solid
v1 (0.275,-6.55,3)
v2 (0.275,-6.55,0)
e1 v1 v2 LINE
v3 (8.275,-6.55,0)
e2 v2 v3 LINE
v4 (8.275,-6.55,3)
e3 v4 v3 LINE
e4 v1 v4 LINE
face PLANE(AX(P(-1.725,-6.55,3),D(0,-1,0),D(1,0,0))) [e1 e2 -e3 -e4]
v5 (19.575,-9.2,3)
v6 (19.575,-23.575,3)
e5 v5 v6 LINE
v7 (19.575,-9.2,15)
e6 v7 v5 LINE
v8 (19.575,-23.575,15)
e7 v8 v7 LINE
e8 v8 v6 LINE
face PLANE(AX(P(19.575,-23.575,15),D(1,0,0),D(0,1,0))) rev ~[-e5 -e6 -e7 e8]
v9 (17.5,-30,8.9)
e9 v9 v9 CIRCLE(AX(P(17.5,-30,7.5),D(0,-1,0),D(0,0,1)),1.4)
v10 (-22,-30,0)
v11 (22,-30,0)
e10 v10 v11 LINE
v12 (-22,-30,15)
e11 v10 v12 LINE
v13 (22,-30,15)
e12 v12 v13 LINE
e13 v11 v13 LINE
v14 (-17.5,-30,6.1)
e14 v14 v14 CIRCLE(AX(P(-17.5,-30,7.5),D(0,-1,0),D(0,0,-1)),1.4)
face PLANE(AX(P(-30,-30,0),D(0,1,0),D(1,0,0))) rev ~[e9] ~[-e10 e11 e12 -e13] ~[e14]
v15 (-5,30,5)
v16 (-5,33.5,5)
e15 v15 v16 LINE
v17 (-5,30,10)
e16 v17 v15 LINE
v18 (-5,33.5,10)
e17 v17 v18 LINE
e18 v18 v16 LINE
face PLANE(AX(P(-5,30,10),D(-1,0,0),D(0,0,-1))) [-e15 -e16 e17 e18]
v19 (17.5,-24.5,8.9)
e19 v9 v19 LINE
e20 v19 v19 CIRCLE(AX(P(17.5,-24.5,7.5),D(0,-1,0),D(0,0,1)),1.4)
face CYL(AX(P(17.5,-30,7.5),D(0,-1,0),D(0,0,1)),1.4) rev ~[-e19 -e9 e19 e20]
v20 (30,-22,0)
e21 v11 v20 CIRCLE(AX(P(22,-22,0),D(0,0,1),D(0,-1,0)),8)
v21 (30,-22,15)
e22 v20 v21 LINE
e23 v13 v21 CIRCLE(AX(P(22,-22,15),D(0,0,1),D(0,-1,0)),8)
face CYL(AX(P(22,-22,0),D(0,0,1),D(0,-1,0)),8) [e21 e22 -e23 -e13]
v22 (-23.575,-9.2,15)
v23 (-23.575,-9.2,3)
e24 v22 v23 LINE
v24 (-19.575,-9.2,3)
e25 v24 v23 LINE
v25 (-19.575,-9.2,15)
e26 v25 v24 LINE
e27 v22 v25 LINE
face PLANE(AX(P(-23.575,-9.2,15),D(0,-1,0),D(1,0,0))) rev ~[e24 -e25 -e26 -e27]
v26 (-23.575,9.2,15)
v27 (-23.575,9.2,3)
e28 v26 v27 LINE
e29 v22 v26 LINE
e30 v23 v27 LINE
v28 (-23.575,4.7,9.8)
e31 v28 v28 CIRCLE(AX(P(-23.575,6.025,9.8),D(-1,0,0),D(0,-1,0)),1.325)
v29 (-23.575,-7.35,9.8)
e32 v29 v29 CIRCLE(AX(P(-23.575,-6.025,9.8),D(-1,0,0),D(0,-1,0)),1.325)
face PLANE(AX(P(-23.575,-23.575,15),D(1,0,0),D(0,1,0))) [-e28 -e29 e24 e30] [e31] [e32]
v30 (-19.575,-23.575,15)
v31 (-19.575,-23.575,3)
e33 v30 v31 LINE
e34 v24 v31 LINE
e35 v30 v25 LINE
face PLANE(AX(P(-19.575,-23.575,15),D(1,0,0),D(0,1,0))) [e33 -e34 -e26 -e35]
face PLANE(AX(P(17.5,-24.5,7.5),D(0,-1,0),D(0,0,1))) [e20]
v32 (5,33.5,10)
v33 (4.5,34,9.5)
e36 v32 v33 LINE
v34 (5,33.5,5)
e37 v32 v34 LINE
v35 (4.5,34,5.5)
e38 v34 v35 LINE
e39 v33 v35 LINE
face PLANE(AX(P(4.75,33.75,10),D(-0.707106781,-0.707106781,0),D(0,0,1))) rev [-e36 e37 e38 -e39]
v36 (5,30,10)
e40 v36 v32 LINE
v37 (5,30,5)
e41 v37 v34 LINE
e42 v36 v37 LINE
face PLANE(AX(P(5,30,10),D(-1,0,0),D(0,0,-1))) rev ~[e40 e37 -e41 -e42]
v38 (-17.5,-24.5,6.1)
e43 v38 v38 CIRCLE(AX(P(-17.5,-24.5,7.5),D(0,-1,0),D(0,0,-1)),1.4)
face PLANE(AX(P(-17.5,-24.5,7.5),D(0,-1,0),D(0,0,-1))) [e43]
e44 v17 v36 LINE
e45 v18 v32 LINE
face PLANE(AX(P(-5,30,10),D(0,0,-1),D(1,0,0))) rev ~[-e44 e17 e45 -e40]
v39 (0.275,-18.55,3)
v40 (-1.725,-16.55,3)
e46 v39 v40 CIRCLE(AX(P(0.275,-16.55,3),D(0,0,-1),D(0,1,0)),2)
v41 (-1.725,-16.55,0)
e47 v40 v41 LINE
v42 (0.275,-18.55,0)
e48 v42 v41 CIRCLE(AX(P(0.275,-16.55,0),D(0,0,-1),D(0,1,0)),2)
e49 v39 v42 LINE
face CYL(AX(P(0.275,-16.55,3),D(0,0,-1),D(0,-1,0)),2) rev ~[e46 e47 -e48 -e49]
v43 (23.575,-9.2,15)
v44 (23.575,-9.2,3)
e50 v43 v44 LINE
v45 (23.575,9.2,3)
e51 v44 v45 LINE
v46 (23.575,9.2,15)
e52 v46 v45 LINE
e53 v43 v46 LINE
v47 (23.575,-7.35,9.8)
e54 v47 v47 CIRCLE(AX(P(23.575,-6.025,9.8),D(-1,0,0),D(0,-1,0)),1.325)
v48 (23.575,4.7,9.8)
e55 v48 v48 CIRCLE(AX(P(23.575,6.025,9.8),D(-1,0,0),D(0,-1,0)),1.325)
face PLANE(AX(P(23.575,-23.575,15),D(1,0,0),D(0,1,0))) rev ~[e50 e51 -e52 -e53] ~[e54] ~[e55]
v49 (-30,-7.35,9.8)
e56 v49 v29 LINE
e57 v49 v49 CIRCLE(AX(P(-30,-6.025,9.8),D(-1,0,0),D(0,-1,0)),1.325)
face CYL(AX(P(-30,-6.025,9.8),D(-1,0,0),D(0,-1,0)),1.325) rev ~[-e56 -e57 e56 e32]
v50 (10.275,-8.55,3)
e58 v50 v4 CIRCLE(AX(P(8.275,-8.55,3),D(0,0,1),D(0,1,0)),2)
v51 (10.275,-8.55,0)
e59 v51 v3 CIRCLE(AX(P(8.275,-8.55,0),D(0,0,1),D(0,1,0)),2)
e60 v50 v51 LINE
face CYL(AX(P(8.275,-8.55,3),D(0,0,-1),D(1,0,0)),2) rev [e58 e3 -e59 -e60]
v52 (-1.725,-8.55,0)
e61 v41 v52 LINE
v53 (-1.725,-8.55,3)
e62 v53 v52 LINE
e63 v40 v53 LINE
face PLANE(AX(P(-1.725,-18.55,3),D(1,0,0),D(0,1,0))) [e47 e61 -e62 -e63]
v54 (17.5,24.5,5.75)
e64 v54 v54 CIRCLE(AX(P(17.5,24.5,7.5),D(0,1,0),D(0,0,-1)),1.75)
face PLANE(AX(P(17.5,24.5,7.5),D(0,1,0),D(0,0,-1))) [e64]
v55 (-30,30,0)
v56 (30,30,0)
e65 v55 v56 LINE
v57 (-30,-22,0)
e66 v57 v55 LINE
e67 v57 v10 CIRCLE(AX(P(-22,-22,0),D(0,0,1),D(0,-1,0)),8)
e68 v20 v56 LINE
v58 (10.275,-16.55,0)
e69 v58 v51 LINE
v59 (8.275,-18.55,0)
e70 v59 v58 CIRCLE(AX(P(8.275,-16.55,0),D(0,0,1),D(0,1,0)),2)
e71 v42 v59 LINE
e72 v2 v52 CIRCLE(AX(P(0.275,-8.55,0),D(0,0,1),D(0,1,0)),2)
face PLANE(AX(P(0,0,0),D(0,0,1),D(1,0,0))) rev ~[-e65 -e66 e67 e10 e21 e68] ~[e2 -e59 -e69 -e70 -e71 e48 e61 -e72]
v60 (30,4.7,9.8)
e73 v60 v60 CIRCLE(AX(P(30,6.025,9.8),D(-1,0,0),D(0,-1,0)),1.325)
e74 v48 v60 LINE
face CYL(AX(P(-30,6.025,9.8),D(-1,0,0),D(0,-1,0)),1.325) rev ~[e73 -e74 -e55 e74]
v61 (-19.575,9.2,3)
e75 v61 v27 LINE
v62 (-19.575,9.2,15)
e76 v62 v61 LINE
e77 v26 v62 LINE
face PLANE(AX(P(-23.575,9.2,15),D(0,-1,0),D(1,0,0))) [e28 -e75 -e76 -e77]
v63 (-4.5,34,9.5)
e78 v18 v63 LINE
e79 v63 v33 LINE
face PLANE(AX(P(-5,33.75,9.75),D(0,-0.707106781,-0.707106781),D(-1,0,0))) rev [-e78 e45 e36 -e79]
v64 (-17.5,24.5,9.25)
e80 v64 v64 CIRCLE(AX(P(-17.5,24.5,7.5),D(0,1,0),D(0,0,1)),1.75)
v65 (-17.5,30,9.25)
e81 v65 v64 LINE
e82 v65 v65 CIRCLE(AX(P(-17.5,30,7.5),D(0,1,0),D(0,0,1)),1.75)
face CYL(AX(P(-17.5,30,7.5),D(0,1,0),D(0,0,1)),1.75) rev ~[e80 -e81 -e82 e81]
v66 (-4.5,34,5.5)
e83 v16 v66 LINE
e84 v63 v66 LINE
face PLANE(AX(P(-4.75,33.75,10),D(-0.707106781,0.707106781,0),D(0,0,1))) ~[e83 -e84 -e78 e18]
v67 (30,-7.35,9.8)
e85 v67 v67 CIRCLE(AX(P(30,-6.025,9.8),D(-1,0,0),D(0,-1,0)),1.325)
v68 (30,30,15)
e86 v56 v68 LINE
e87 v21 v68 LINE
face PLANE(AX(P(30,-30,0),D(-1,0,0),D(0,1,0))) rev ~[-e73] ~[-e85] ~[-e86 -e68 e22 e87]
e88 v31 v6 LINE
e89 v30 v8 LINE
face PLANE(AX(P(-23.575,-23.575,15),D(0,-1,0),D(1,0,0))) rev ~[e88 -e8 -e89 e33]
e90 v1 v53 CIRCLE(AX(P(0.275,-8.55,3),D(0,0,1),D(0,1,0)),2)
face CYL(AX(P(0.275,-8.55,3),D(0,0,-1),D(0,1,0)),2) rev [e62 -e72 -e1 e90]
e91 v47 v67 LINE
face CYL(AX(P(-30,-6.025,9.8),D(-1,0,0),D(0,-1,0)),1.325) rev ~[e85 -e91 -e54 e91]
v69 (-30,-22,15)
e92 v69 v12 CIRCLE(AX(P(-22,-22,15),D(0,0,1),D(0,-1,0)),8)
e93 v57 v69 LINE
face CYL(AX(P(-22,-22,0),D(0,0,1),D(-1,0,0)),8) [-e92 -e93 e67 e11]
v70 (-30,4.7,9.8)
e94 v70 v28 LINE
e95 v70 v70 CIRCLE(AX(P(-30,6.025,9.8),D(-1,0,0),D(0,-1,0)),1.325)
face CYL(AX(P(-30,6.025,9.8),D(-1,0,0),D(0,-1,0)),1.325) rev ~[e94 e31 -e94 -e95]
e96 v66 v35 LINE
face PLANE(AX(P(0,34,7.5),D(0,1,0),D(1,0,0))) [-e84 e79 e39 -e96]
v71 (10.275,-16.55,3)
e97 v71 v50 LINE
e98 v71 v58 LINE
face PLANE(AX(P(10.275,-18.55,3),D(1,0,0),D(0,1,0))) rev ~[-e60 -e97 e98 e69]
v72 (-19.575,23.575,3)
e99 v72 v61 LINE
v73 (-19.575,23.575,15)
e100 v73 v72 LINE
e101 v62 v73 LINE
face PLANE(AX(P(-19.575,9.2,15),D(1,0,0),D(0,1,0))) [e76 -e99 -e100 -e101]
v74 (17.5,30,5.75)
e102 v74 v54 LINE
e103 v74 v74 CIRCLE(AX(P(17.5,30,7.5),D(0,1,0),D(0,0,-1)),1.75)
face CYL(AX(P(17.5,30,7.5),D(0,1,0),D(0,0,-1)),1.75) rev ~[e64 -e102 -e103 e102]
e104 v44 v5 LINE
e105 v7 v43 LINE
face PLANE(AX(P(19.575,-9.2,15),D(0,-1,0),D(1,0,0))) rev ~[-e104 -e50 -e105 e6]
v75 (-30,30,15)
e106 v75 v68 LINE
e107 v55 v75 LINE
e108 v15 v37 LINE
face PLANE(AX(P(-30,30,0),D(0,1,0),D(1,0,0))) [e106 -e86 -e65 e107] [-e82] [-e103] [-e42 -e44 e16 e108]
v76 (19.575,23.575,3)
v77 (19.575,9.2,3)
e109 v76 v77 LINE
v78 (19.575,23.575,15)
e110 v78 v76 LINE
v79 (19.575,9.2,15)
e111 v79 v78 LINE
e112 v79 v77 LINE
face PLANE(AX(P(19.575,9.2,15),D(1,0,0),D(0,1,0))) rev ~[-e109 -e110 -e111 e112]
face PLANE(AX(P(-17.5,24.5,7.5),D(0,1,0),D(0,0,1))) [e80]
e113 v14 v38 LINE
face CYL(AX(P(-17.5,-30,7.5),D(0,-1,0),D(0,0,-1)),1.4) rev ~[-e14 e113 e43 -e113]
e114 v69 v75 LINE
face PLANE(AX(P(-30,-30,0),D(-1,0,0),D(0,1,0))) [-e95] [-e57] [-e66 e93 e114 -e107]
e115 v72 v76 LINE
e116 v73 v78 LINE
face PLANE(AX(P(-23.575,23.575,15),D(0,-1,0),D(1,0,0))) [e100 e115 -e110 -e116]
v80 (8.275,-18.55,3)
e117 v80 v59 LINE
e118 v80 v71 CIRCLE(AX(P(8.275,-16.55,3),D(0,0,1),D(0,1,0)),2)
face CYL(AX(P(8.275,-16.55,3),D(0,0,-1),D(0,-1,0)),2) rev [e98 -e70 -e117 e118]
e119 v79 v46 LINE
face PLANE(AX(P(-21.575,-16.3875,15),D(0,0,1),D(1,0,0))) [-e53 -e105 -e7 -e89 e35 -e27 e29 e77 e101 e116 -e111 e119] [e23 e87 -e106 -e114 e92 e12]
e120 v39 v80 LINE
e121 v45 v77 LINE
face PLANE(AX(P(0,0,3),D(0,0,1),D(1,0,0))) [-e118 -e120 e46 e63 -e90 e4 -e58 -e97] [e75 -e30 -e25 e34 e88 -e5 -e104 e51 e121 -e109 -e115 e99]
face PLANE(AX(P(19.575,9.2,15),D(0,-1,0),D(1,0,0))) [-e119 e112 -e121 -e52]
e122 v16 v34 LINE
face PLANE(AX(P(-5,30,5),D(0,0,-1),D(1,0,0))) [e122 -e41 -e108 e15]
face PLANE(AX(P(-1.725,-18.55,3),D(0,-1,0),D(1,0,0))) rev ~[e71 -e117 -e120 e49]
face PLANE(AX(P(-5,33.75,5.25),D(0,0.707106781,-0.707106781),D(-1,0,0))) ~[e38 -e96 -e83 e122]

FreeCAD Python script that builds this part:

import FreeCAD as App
import Part
import Sketcher

V = App.Vector


def edges_at(feature, points):
    """Names of the edges that pass closest to the given points."""
    edges = feature.Shape.Edges
    near = lambda p: min(range(len(edges)), key=lambda i: edges[i].distToShape(Part.Vertex(*p))[0])
    return sorted({f"Edge{near(p) + 1}" for p in points})


def add_polygon(sketch, points):
    """Adds a closed chain of lines whose ends are joined by coincident constraints."""
    first, n = sketch.GeometryCount, len(points)
    for a, b in zip(points, points[1:] + points[:1]):
        sketch.addGeometry(Part.LineSegment(App.Vector(*a, 0), App.Vector(*b, 0)), False)
    for i in range(n):
        sketch.addConstraint(Sketcher.Constraint("Coincident", first + i, 2, first + (i + 1) % n, 1))

doc = App.newDocument("Part")
body = doc.addObject("PartDesign::Body", "Body")

# Sketch on XY plane
sketch1 = doc.addObject("Sketcher::SketchObject", "Sketch")
body.addObject(sketch1)
sketch1.AttachmentSupport = (doc.XY_Plane, [""])
sketch1.MapMode = "FlatFace"
add_polygon(sketch1, [(-30, 30), (-30, -30), (30, -30), (30, 30)])  # lines 0-3
sketch1.addConstraint(Sketcher.Constraint("Vertical", 0))
sketch1.addConstraint(Sketcher.Constraint("Horizontal", 1))
sketch1.addConstraint(Sketcher.Constraint("Vertical", 2))
sketch1.addConstraint(Sketcher.Constraint("Horizontal", 3))
sketch1.addConstraint(Sketcher.Constraint("Symmetric", 0, 2, 2, 2, -1, 1))
sketch1.addConstraint(Sketcher.Constraint("Equal", 3, 0))
sketch1.addConstraint(Sketcher.Constraint("DistanceX", 1, 1, 1, 2, 60.0))
pad1 = doc.addObject("PartDesign::Pad", "Pad")
body.addObject(pad1)
pad1.Profile = sketch1
pad1.Length = 15

# Sketch on XY plane
sketch2 = doc.addObject("Sketcher::SketchObject", "Sketch001")
body.addObject(sketch2)
sketch2.AttachmentSupport = (doc.XY_Plane, [""])
sketch2.MapMode = "FlatFace"
sketch2.AttachmentOffset = App.Placement(V(0, 0, 15), App.Rotation())
add_polygon(sketch2, [(-24, 24), (-24, -24), (24, -24), (24, 24)])  # lines 0-3
sketch2.addConstraint(Sketcher.Constraint("Vertical", 0))
sketch2.addConstraint(Sketcher.Constraint("Horizontal", 1))
sketch2.addConstraint(Sketcher.Constraint("Vertical", 2))
sketch2.addConstraint(Sketcher.Constraint("Horizontal", 3))
sketch2.addConstraint(Sketcher.Constraint("Symmetric", 0, 2, 2, 2, -1, 1))
sketch2.addConstraint(Sketcher.Constraint("Equal", 3, 0))
sketch2.addConstraint(Sketcher.Constraint("DistanceX", 1, 1, 1, 2, 47.15))
pocket1 = doc.addObject("PartDesign::Pocket", "Pocket")
body.addObject(pocket1)
pocket1.Profile = sketch2
pocket1.Length = 12

# Sketch on YZ plane
sketch3 = doc.addObject("Sketcher::SketchObject", "Sketch002")
body.addObject(sketch3)
sketch3.AttachmentSupport = (doc.YZ_Plane, [""])
sketch3.MapMode = "FlatFace"
sketch3.AttachmentOffset = App.Placement(V(0, 0, -30), App.Rotation())
sketch3.addGeometry(Part.Circle(V(6, 9.8, 0), V(0, 0, 1), 1.3), False)
sketch3.addGeometry(Part.Circle(V(-6, 9.8, 0), V(0, 0, 1), 1.3), False)
sketch3.addConstraint(Sketcher.Constraint("Equal", 0, 1))
sketch3.addConstraint(Sketcher.Constraint("Symmetric", 0, 3, 1, 3, -2))
sketch3.addConstraint(Sketcher.Constraint("Diameter", 0, 2.65))
sketch3.addConstraint(Sketcher.Constraint("DistanceY", -1, 1, 0, 3, 9.8))
sketch3.addConstraint(Sketcher.Constraint("DistanceX", 1, 3, 0, 3, 12.05))
pocket2 = doc.addObject("PartDesign::Pocket", "Pocket001")
body.addObject(pocket2)
pocket2.Profile = sketch3
pocket2.Type = "ThroughAll"
pocket2.Reversed = True

# Sketch on XY plane
sketch4 = doc.addObject("Sketcher::SketchObject", "Sketch003")
body.addObject(sketch4)
sketch4.AttachmentSupport = (doc.XY_Plane, [""])
sketch4.MapMode = "FlatFace"
sketch4.AttachmentOffset = App.Placement(V(0, 0, 15), App.Rotation())
add_polygon(sketch4, [(-23.6, 23.6), (-23.6, 9.2), (-19.6, 9.2), (-19.6, 23.6)])  # lines 0-3
sketch4.addConstraint(Sketcher.Constraint("Vertical", 0))
sketch4.addConstraint(Sketcher.Constraint("Horizontal", 1))
sketch4.addConstraint(Sketcher.Constraint("Vertical", 2))
sketch4.addConstraint(Sketcher.Constraint("Horizontal", 3))
sketch4.addConstraint(Sketcher.Constraint("DistanceX", 1, 1, 1, 2, 4.0))
sketch4.addConstraint(Sketcher.Constraint("DistanceY", -1, 1, 0, 2, 9.2))
sketch4.addConstraint(Sketcher.Constraint("DistanceY", 0, 2, 0, 1, 14.375))
sketch4.addConstraint(Sketcher.Constraint("DistanceX", 0, 2, -1, 1, 23.575))
pad2 = doc.addObject("PartDesign::Pad", "Pad001")
body.addObject(pad2)
pad2.Profile = sketch4
pad2.Type = "UpToFirst"
pad2.Reversed = True

# Sketch on XY plane
sketch5 = doc.addObject("Sketcher::SketchObject", "Sketch004")
body.addObject(sketch5)
sketch5.AttachmentSupport = (doc.XY_Plane, [""])
sketch5.MapMode = "FlatFace"
sketch5.AttachmentOffset = App.Placement(V(0, 0, 15), App.Rotation())
add_polygon(sketch5, [(19.6, 23.6), (19.6, 9.2), (23.6, 9.2), (23.6, 23.6)])  # lines 0-3
sketch5.addConstraint(Sketcher.Constraint("Vertical", 0))
sketch5.addConstraint(Sketcher.Constraint("Horizontal", 1))
sketch5.addConstraint(Sketcher.Constraint("Vertical", 2))
sketch5.addConstraint(Sketcher.Constraint("Horizontal", 3))
sketch5.addConstraint(Sketcher.Constraint("DistanceX", 1, 1, 1, 2, 4.0))
sketch5.addConstraint(Sketcher.Constraint("DistanceY", -1, 1, 0, 2, 9.2))
sketch5.addConstraint(Sketcher.Constraint("DistanceY", 0, 2, 0, 1, 14.375))
sketch5.addConstraint(Sketcher.Constraint("DistanceX", -1, 1, 0, 2, 19.575))
pad3 = doc.addObject("PartDesign::Pad", "Pad002")
body.addObject(pad3)
pad3.Profile = sketch5
pad3.Type = "UpToFirst"
pad3.Reversed = True

# Sketch on XY plane
sketch6 = doc.addObject("Sketcher::SketchObject", "Sketch005")
body.addObject(sketch6)
sketch6.AttachmentSupport = (doc.XY_Plane, [""])
sketch6.MapMode = "FlatFace"
sketch6.AttachmentOffset = App.Placement(V(0, 0, 15), App.Rotation())
add_polygon(sketch6, [(19.6, -9.2), (19.6, -23.6), (23.6, -23.6), (23.6, -9.2)])  # lines 0-3
sketch6.addConstraint(Sketcher.Constraint("Vertical", 0))
sketch6.addConstraint(Sketcher.Constraint("Horizontal", 1))
sketch6.addConstraint(Sketcher.Constraint("Vertical", 2))
sketch6.addConstraint(Sketcher.Constraint("Horizontal", 3))
sketch6.addConstraint(Sketcher.Constraint("DistanceX", 1, 1, 1, 2, 4.0))
sketch6.addConstraint(Sketcher.Constraint("DistanceY", 2, 2, -1, 1, 9.2))
sketch6.addConstraint(Sketcher.Constraint("DistanceY", 0, 2, 0, 1, 14.375))
sketch6.addConstraint(Sketcher.Constraint("DistanceX", -1, 1, 0, 2, 19.575))
pad4 = doc.addObject("PartDesign::Pad", "Pad003")
body.addObject(pad4)
pad4.Profile = sketch6
pad4.Type = "UpToFirst"
pad4.Reversed = True

# Sketch on XY plane
sketch7 = doc.addObject("Sketcher::SketchObject", "Sketch006")
body.addObject(sketch7)
sketch7.AttachmentSupport = (doc.XY_Plane, [""])
sketch7.MapMode = "FlatFace"
sketch7.AttachmentOffset = App.Placement(V(0, 0, 15), App.Rotation())
add_polygon(sketch7, [(-23.6, -9.2), (-23.6, -23.6), (-19.6, -23.6), (-19.6, -9.2)])  # lines 0-3
sketch7.addConstraint(Sketcher.Constraint("Vertical", 0))
sketch7.addConstraint(Sketcher.Constraint("Horizontal", 1))
sketch7.addConstraint(Sketcher.Constraint("Vertical", 2))
sketch7.addConstraint(Sketcher.Constraint("Horizontal", 3))
sketch7.addConstraint(Sketcher.Constraint("DistanceX", 1, 1, 1, 2, 4.0))
sketch7.addConstraint(Sketcher.Constraint("DistanceY", 2, 2, -1, 1, 9.2))
sketch7.addConstraint(Sketcher.Constraint("DistanceY", 0, 2, 0, 1, 14.375))
sketch7.addConstraint(Sketcher.Constraint("DistanceX", 0, 2, -1, 1, 23.575))
pad5 = doc.addObject("PartDesign::Pad", "Pad004")
body.addObject(pad5)
pad5.Profile = sketch7
pad5.Type = "UpToFirst"
pad5.Reversed = True
doc.recompute()

fillet = doc.addObject("PartDesign::Fillet", "Fillet")
body.addObject(fillet)
fillet.Base = (pad5, edges_at(pad5, [(30, -30, 7.5), (-30, -30, 7.5)]))
fillet.Radius = 8

# Sketch on XZ plane
sketch8 = doc.addObject("Sketcher::SketchObject", "Sketch007")
body.addObject(sketch8)
sketch8.AttachmentSupport = (doc.XZ_Plane, [""])
sketch8.MapMode = "FlatFace"
sketch8.AttachmentOffset = App.Placement(V(0, 0, -30), App.Rotation())
sketch8.addGeometry(Part.Circle(V(-17.5, 7.5, 0), V(0, 0, 1), 1.8), False)
sketch8.addGeometry(Part.Circle(V(17.5, 7.5, 0), V(0, 0, 1), 1.8), False)
sketch8.addConstraint(Sketcher.Constraint("Equal", 0, 1))
sketch8.addConstraint(Sketcher.Constraint("Symmetric", 0, 3, 1, 3, -2))
sketch8.addConstraint(Sketcher.Constraint("Diameter", 0, 3.5))
sketch8.addConstraint(Sketcher.Constraint("DistanceX", 0, 3, 1, 3, 35.0))
sketch8.addConstraint(Sketcher.Constraint("DistanceY", -1, 1, 0, 3, 7.5))
pocket3 = doc.addObject("PartDesign::Pocket", "Pocket002")
body.addObject(pocket3)
pocket3.Profile = sketch8
pocket3.Length = 5.5
pocket3.Reversed = True

# Sketch on XZ plane
sketch9 = doc.addObject("Sketcher::SketchObject", "Sketch008")
body.addObject(sketch9)
sketch9.AttachmentSupport = (doc.XZ_Plane, [""])
sketch9.MapMode = "FlatFace"
sketch9.AttachmentOffset = App.Placement(V(0, 0, 30), App.Rotation())
sketch9.addGeometry(Part.Circle(V(-17.5, 7.5, 0), V(0, 0, 1), 1.4), False)
sketch9.addGeometry(Part.Circle(V(17.5, 7.5, 0), V(0, 0, 1), 1.4), False)
sketch9.addConstraint(Sketcher.Constraint("Equal", 0, 1))
sketch9.addConstraint(Sketcher.Constraint("Symmetric", 0, 3, 1, 3, -2))
sketch9.addConstraint(Sketcher.Constraint("Diameter", 0, 2.8))
sketch9.addConstraint(Sketcher.Constraint("DistanceX", 0, 3, 1, 3, 35.0))
sketch9.addConstraint(Sketcher.Constraint("DistanceY", -1, 1, 0, 3, 7.5))
pocket4 = doc.addObject("PartDesign::Pocket", "Pocket003")
body.addObject(pocket4)
pocket4.Profile = sketch9
pocket4.Length = 5.5

# Sketch on XZ plane
sketch10 = doc.addObject("Sketcher::SketchObject", "Sketch009")
body.addObject(sketch10)
sketch10.AttachmentSupport = (doc.XZ_Plane, [""])
sketch10.MapMode = "FlatFace"
sketch10.AttachmentOffset = App.Placement(V(0, 0, -30), App.Rotation())
add_polygon(sketch10, [(-5, 5), (-5, 10), (5, 10), (5, 5)])  # lines 0-3
sketch10.addConstraint(Sketcher.Constraint("Vertical", 0))
sketch10.addConstraint(Sketcher.Constraint("Horizontal", 1))
sketch10.addConstraint(Sketcher.Constraint("Vertical", 2))
sketch10.addConstraint(Sketcher.Constraint("Horizontal", 3))
sketch10.addConstraint(Sketcher.Constraint("DistanceX", 1, 1, 1, 2, 10.0))
sketch10.addConstraint(Sketcher.Constraint("DistanceY", 0, 1, 0, 2, 5.0))
sketch10.addConstraint(Sketcher.Constraint("DistanceX", 0, 2, -1, 1, 5.0))
sketch10.addConstraint(Sketcher.Constraint("DistanceY", -1, 1, 0, 2, 10.0))
pad6 = doc.addObject("PartDesign::Pad", "Pad005")
body.addObject(pad6)
pad6.Profile = sketch10
pad6.Length = 4
pad6.Reversed = True
doc.recompute()

chamfer = doc.addObject("PartDesign::Chamfer", "Chamfer")
body.addObject(chamfer)
chamfer.Base = (pad6, edges_at(pad6, [
    (5, 34, 7.5),
    (0, 34, 5),
    (-5, 34, 7.5),
    (0, 34, 10),
]))
chamfer.Size = 0.5

# Sketch on XY plane
sketch11 = doc.addObject("Sketcher::SketchObject", "Sketch010")
body.addObject(sketch11)
sketch11.AttachmentSupport = (doc.XY_Plane, [""])
sketch11.MapMode = "FlatFace"
sketch11.AttachmentOffset = App.Placement(V(0, 0, 3), App.Rotation())
add_polygon(sketch11, [(-2, -7), (-2, -19), (10, -19), (10, -7)])  # lines 0-3
sketch11.addConstraint(Sketcher.Constraint("Vertical", 0))
sketch11.addConstraint(Sketcher.Constraint("Horizontal", 1))
sketch11.addConstraint(Sketcher.Constraint("Vertical", 2))
sketch11.addConstraint(Sketcher.Constraint("Horizontal", 3))
sketch11.addConstraint(Sketcher.Constraint("Equal", 3, 0))
sketch11.addConstraint(Sketcher.Constraint("DistanceX", 1, 1, 1, 2, 12.0))
sketch11.addConstraint(Sketcher.Constraint("DistanceY", 0, 2, -1, 1, 18.55))
sketch11.addConstraint(Sketcher.Constraint("DistanceX", 0, 2, -1, 1, 1.725))
pocket5 = doc.addObject("PartDesign::Pocket", "Pocket004")
body.addObject(pocket5)
pocket5.Profile = sketch11
pocket5.Type = "ThroughAll"
doc.recompute()

fillet2 = doc.addObject("PartDesign::Fillet", "Fillet001")
body.addObject(fillet2)
fillet2.Base = (pocket5, edges_at(pocket5, [
    (-1.725, -18.55, 1.5),
    (-1.725, -6.55, 1.5),
    (10.275, -6.55, 1.5),
    (10.275, -18.55, 1.5),
]))
fillet2.Radius = 2

doc.recompute()
